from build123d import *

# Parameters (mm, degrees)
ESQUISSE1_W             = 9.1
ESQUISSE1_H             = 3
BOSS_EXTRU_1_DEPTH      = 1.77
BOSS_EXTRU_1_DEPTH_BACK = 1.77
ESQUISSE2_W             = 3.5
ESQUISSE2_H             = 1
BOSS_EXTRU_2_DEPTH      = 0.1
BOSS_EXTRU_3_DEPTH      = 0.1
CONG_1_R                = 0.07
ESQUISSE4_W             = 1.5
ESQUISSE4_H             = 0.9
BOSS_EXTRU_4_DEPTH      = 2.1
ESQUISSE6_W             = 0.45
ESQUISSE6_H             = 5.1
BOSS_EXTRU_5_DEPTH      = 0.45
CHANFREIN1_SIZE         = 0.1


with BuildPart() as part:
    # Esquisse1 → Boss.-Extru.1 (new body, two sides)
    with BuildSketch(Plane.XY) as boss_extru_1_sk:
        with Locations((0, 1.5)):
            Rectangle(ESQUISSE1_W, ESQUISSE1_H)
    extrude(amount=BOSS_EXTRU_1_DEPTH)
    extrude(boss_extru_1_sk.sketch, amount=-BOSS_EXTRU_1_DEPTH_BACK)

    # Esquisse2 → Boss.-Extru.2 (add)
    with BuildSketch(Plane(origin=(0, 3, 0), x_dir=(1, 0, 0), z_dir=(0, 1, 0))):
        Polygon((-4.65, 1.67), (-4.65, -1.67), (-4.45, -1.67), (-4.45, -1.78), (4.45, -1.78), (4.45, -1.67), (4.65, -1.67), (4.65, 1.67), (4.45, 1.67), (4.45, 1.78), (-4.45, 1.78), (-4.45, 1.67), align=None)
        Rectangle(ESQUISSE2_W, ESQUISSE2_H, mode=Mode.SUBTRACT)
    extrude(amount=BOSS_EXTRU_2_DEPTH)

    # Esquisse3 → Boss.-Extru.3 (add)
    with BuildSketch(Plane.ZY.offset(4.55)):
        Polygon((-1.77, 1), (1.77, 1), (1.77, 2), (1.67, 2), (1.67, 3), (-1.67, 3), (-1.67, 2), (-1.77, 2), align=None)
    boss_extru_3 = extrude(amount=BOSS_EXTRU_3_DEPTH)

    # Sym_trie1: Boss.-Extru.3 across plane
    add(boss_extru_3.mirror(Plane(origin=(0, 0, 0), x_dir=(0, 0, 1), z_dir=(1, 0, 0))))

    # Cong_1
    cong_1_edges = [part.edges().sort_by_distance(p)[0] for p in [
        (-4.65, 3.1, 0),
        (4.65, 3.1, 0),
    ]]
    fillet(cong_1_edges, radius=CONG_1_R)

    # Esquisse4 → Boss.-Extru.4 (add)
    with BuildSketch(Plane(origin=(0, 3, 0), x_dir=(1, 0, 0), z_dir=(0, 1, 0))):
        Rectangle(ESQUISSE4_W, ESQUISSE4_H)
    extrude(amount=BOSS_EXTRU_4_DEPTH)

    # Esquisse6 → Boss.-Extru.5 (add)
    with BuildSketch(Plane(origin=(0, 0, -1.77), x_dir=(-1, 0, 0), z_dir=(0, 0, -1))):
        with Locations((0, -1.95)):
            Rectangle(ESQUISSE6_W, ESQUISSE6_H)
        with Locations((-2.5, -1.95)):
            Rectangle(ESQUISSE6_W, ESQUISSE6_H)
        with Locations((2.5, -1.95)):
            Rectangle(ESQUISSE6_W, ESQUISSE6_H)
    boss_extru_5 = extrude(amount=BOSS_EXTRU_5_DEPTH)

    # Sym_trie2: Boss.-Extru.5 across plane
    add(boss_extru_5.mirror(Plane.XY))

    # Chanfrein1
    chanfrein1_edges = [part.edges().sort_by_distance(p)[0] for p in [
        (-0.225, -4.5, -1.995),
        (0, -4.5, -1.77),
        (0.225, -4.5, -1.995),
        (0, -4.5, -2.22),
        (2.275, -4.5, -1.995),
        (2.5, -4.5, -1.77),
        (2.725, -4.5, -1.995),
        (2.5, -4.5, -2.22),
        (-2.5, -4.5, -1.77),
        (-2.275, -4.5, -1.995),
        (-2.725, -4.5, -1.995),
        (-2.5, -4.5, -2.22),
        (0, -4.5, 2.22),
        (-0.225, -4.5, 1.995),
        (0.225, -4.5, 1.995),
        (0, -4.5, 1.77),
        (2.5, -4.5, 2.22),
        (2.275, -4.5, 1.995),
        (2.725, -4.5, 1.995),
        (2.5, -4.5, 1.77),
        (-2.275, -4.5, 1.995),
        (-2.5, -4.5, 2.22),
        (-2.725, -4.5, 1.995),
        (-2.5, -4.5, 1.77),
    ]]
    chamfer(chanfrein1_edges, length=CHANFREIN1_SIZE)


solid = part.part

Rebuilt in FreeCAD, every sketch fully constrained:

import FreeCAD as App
import Part
import Sketcher
Q = App.Units.Quantity


def edges_at(feature, points):
    """Names of the edges that pass closest to the given points."""
    edges = feature.Shape.Edges
    near = lambda p: min(range(len(edges)), key=lambda i: edges[i].distToShape(Part.Vertex(*p))[0])
    return sorted({f"Edge{near(p) + 1}" for p in points})


def add_polygon(sketch, points):
    """Adds a closed chain of lines whose ends are joined by coincident constraints."""
    first, n = sketch.GeometryCount, len(points)
    for a, b in zip(points, points[1:] + points[:1]):
        sketch.addGeometry(Part.LineSegment(App.Vector(*a, 0), App.Vector(*b, 0)), False)
    for i in range(n):
        sketch.addConstraint(Sketcher.Constraint("Coincident", first + i, 2, first + (i + 1) % n, 1))

doc = App.newDocument("Part")
body = doc.addObject("PartDesign::Body", "Body")

# Sketch on XY plane
sketch1 = doc.addObject("Sketcher::SketchObject", "Sketch")
body.addObject(sketch1)
sketch1.AttachmentSupport = (doc.XY_Plane, [""])
sketch1.MapMode = "FlatFace"
add_polygon(sketch1, [(-4.5, 3), (-4.5, 0), (4.5, 0), (4.5, 3)])  # lines 0-3
sketch1.addConstraint([
    Sketcher.Constraint("Vertical", 0),
    Sketcher.Constraint("Horizontal", 1),
    Sketcher.Constraint("Vertical", 2),
    Sketcher.Constraint("Horizontal", 3),
    Sketcher.Constraint("Symmetric", 0, 2, 1, 2, -1, 1),
    Sketcher.Constraint("DistanceY", 0, 2, 0, 1, Q("3 mm")),
    Sketcher.Constraint("DistanceX", 1, 1, 1, 2, Q("9.1 mm")),
])
pad1 = doc.addObject("PartDesign::Pad", "Pad")
body.addObject(pad1)
pad1.Profile = sketch1
pad1.Type = "TwoLengths"
pad1.Length = 1.77
pad1.Length2 = 1.77

# Sketch on XZ plane
sketch2 = doc.addObject("Sketcher::SketchObject", "Sketch001")
body.addObject(sketch2)
sketch2.AttachmentSupport = (doc.XZ_Plane, [""])
sketch2.MapMode = "FlatFace"
sketch2.AttachmentOffset = App.Placement(App.Vector(0, 0, -3), App.Rotation())
add_polygon(sketch2, [(-4.65, -1.67), (-4.65, 1.67), (-4.45, 1.67), (-4.45, 1.78), (4.45, 1.78), (4.45, 1.67), (4.65, 1.67), (4.65, -1.67), (4.45, -1.67), (4.45, -1.78), (-4.45, -1.78), (-4.45, -1.67)])  # lines 0-11
add_polygon(sketch2, [(1.75, 0.5), (-1.75, 0.5), (-1.75, -0.5), (1.75, -0.5)])  # lines 12-15
sketch2.addConstraint([
    Sketcher.Constraint("Vertical", 0),
    Sketcher.Constraint("Horizontal", 1),
    Sketcher.Constraint("Vertical", 2),
    Sketcher.Constraint("Horizontal", 3),
    Sketcher.Constraint("Vertical", 4),
    Sketcher.Constraint("Horizontal", 5),
    Sketcher.Constraint("Vertical", 6),
    Sketcher.Constraint("Horizontal", 7),
    Sketcher.Constraint("Vertical", 8),
    Sketcher.Constraint("Horizontal", 9),
    Sketcher.Constraint("Vertical", 10),
    Sketcher.Constraint("Horizontal", 11),
    Sketcher.Constraint("Horizontal", 12),
    Sketcher.Constraint("Vertical", 13),
    Sketcher.Constraint("Horizontal", 14),
    Sketcher.Constraint("Vertical", 15),
    Sketcher.Constraint("Symmetric", 0, 2, 6, 2, -1, 1),
    Sketcher.Constraint("Symmetric", 2, 2, 8, 2, -1, 1),
    Sketcher.Constraint("Symmetric", 4, 2, 10, 2, -1, 1),
    Sketcher.Constraint("Symmetric", 12, 2, 14, 2, -1, 1),
    Sketcher.Constraint("Symmetric", 1, 2, 4, 2, -2),
    Sketcher.Constraint("DistanceY", 13, 2, 13, 1, Q("1 mm")),
    Sketcher.Constraint("DistanceX", 1, 1, 1, 2, Q("0.2 mm")),
    Sketcher.Constraint("DistanceX", 3, 1, 3, 2, Q("8.9 mm")),
    Sketcher.Constraint("DistanceX", 12, 2, 12, 1, Q("3.5 mm")),
    Sketcher.Constraint("DistanceY", 0, 1, 0, 2, Q("3.34 mm")),
    Sketcher.Constraint("DistanceY", 2, 1, 2, 2, Q("0.11 mm")),
])
pad2 = doc.addObject("PartDesign::Pad", "Pad001")
body.addObject(pad2)
pad2.Profile = sketch2
pad2.Length = 0.1
pad2.Reversed = True

# Sketch on YZ plane
sketch3 = doc.addObject("Sketcher::SketchObject", "Sketch002")
body.addObject(sketch3)
sketch3.AttachmentSupport = (doc.YZ_Plane, [""])
sketch3.MapMode = "FlatFace"
sketch3.AttachmentOffset = App.Placement(App.Vector(0, 0, -4.55), App.Rotation())
add_polygon(sketch3, [(1, -1.77), (1, 1.77), (2, 1.77), (2, 1.67), (3, 1.67), (3, -1.67), (2, -1.67), (2, -1.77)])  # lines 0-7
sketch3.addConstraint([
    Sketcher.Constraint("Vertical", 0),
    Sketcher.Constraint("Horizontal", 1),
    Sketcher.Constraint("Vertical", 2),
    Sketcher.Constraint("Horizontal", 3),
    Sketcher.Constraint("Vertical", 4),
    Sketcher.Constraint("Horizontal", 5),
    Sketcher.Constraint("Vertical", 6),
    Sketcher.Constraint("Horizontal", 7),
    Sketcher.Constraint("Symmetric", 2, 2, 5, 2, -1),
    Sketcher.Constraint("Equal", 1, 3),
    Sketcher.Constraint("Equal", 2, 6),
    Sketcher.Constraint("DistanceX", 1, 1, 1, 2, Q("1 mm")),
    Sketcher.Constraint("DistanceY", 2, 2, 2, 1, Q("0.1 mm")),
    Sketcher.Constraint("DistanceX", -1, 1, 0, 2, Q("1 mm")),
    Sketcher.Constraint("DistanceY", 0, 1, 0, 2, Q("3.54 mm")),
])
pad3 = doc.addObject("PartDesign::Pad", "Pad002")
body.addObject(pad3)
pad3.Profile = sketch3
pad3.Length = 0.1
pad3.Reversed = True
doc.recompute()

mirrored = doc.addObject("PartDesign::Mirrored", "Mirrored")
body.addObject(mirrored)
mirrored.Originals = [pad3]
mirrored.MirrorPlane = (doc.YZ_Plane, [""])
body.Tip = mirrored
doc.recompute()

fillet = doc.addObject("PartDesign::Fillet", "Fillet")
body.addObject(fillet)
fillet.Base = (mirrored, edges_at(mirrored, [(-4.65, 3.1, 0), (4.65, 3.1, 0)]))
fillet.Radius = 0.07

# Sketch on XZ plane
sketch4 = doc.addObject("Sketcher::SketchObject", "Sketch003")
body.addObject(sketch4)
sketch4.AttachmentSupport = (doc.XZ_Plane, [""])
sketch4.MapMode = "FlatFace"
sketch4.AttachmentOffset = App.Placement(App.Vector(0, 0, -3), App.Rotation())
add_polygon(sketch4, [(-0.8, -0.5), (-0.8, 0.5), (0.8, 0.5), (0.8, -0.5)])  # lines 0-3
sketch4.addConstraint([
    Sketcher.Constraint("Vertical", 0),
    Sketcher.Constraint("Horizontal", 1),
    Sketcher.Constraint("Vertical", 2),
    Sketcher.Constraint("Horizontal", 3),
    Sketcher.Constraint("Symmetric", 0, 2, 2, 2, -1, 1),
    Sketcher.Constraint("DistanceX", 1, 1, 1, 2, Q("1.5 mm")),
    Sketcher.Constraint("DistanceY", 0, 1, 0, 2, Q("0.9 mm")),
])
pad4 = doc.addObject("PartDesign::Pad", "Pad003")
body.addObject(pad4)
pad4.Profile = sketch4
pad4.Length = 2.1
pad4.Reversed = True

# Sketch on XY plane
sketch5 = doc.addObject("Sketcher::SketchObject", "Sketch004")
body.addObject(sketch5)
sketch5.AttachmentSupport = (doc.XY_Plane, [""])
sketch5.MapMode = "FlatFace"
sketch5.AttachmentOffset = App.Placement(App.Vector(0, 0, -1.77), App.Rotation())
add_polygon(sketch5, [(0.23, 0.6), (0.23, -4.5), (-0.23, -4.5), (-0.23, 0.6)])  # lines 0-3
add_polygon(sketch5, [(2.73, 0.6), (2.73, -4.5), (2.27, -4.5), (2.27, 0.6)])  # lines 4-7
add_polygon(sketch5, [(-2.27, 0.6), (-2.27, -4.5), (-2.73, -4.5), (-2.73, 0.6)])  # lines 8-11
sketch5.addConstraint([
    Sketcher.Constraint("Vertical", 0),
    Sketcher.Constraint("Horizontal", 1),
    Sketcher.Constraint("Vertical", 2),
    Sketcher.Constraint("Horizontal", 3),
    Sketcher.Constraint("Vertical", 4),
    Sketcher.Constraint("Horizontal", 5),
    Sketcher.Constraint("Vertical", 6),
    Sketcher.Constraint("Horizontal", 7),
    Sketcher.Constraint("Vertical", 8),
    Sketcher.Constraint("Horizontal", 9),
    Sketcher.Constraint("Vertical", 10),
    Sketcher.Constraint("Horizontal", 11),
    Sketcher.Constraint("Symmetric", 5, 2, 8, 2, -2),
    Sketcher.Constraint("Symmetric", 7, 2, 10, 2, -2),
    Sketcher.Constraint("Horizontal", 1, 2, 4, 2),
    Sketcher.Constraint("Horizontal", 3, 2, 6, 2),
    Sketcher.Constraint("Equal", 3, 5),
    Sketcher.Constraint("DistanceY", 0, 2, 0, 1, Q("5.1 mm")),
    Sketcher.Constraint("DistanceX", 8, 2, 4, 2, Q("5 mm")),
    Sketcher.Constraint("DistanceX", 1, 2, 1, 1, Q("0.45 mm")),
    Sketcher.Constraint("DistanceY", 0, 2, -1, 1, Q("4.5 mm")),
    Sketcher.Constraint("DistanceX", 0, 2, 4, 2, Q("2.5 mm")),
])
pad5 = doc.addObject("PartDesign::Pad", "Pad004")
body.addObject(pad5)
pad5.Profile = sketch5
pad5.Length = 0.45
pad5.Reversed = True
doc.recompute()

mirrored2 = doc.addObject("PartDesign::Mirrored", "Mirrored001")
body.addObject(mirrored2)
mirrored2.Originals = [pad5]
mirrored2.MirrorPlane = (doc.XY_Plane, [""])
body.Tip = mirrored2
doc.recompute()

chamfer = doc.addObject("PartDesign::Chamfer", "Chamfer")
body.addObject(chamfer)
chamfer.Base = (mirrored2, edges_at(mirrored2, [
    (-0.225, -4.5, -1.995),
    (0, -4.5, -1.77),
    (0.225, -4.5, -1.995),
    (0, -4.5, -2.22),
    (2.275, -4.5, -1.995),
    (2.5, -4.5, -1.77),
    (2.725, -4.5, -1.995),
    (2.5, -4.5, -2.22),
    (-2.5, -4.5, -1.77),
    (-2.275, -4.5, -1.995),
    (-2.725, -4.5, -1.995),
    (-2.5, -4.5, -2.22),
    (0, -4.5, 2.22),
    (-0.225, -4.5, 1.995),
    (0.225, -4.5, 1.995),
    (0, -4.5, 1.77),
    (2.5, -4.5, 2.22),
    (2.275, -4.5, 1.995),
    (2.725, -4.5, 1.995),
    (2.5, -4.5, 1.77),
    (-2.275, -4.5, 1.995),
    (-2.5, -4.5, 2.22),
    (-2.725, -4.5, 1.995),
    (-2.5, -4.5, 1.77),
]))
chamfer.Size = 0.1

doc.recompute()
